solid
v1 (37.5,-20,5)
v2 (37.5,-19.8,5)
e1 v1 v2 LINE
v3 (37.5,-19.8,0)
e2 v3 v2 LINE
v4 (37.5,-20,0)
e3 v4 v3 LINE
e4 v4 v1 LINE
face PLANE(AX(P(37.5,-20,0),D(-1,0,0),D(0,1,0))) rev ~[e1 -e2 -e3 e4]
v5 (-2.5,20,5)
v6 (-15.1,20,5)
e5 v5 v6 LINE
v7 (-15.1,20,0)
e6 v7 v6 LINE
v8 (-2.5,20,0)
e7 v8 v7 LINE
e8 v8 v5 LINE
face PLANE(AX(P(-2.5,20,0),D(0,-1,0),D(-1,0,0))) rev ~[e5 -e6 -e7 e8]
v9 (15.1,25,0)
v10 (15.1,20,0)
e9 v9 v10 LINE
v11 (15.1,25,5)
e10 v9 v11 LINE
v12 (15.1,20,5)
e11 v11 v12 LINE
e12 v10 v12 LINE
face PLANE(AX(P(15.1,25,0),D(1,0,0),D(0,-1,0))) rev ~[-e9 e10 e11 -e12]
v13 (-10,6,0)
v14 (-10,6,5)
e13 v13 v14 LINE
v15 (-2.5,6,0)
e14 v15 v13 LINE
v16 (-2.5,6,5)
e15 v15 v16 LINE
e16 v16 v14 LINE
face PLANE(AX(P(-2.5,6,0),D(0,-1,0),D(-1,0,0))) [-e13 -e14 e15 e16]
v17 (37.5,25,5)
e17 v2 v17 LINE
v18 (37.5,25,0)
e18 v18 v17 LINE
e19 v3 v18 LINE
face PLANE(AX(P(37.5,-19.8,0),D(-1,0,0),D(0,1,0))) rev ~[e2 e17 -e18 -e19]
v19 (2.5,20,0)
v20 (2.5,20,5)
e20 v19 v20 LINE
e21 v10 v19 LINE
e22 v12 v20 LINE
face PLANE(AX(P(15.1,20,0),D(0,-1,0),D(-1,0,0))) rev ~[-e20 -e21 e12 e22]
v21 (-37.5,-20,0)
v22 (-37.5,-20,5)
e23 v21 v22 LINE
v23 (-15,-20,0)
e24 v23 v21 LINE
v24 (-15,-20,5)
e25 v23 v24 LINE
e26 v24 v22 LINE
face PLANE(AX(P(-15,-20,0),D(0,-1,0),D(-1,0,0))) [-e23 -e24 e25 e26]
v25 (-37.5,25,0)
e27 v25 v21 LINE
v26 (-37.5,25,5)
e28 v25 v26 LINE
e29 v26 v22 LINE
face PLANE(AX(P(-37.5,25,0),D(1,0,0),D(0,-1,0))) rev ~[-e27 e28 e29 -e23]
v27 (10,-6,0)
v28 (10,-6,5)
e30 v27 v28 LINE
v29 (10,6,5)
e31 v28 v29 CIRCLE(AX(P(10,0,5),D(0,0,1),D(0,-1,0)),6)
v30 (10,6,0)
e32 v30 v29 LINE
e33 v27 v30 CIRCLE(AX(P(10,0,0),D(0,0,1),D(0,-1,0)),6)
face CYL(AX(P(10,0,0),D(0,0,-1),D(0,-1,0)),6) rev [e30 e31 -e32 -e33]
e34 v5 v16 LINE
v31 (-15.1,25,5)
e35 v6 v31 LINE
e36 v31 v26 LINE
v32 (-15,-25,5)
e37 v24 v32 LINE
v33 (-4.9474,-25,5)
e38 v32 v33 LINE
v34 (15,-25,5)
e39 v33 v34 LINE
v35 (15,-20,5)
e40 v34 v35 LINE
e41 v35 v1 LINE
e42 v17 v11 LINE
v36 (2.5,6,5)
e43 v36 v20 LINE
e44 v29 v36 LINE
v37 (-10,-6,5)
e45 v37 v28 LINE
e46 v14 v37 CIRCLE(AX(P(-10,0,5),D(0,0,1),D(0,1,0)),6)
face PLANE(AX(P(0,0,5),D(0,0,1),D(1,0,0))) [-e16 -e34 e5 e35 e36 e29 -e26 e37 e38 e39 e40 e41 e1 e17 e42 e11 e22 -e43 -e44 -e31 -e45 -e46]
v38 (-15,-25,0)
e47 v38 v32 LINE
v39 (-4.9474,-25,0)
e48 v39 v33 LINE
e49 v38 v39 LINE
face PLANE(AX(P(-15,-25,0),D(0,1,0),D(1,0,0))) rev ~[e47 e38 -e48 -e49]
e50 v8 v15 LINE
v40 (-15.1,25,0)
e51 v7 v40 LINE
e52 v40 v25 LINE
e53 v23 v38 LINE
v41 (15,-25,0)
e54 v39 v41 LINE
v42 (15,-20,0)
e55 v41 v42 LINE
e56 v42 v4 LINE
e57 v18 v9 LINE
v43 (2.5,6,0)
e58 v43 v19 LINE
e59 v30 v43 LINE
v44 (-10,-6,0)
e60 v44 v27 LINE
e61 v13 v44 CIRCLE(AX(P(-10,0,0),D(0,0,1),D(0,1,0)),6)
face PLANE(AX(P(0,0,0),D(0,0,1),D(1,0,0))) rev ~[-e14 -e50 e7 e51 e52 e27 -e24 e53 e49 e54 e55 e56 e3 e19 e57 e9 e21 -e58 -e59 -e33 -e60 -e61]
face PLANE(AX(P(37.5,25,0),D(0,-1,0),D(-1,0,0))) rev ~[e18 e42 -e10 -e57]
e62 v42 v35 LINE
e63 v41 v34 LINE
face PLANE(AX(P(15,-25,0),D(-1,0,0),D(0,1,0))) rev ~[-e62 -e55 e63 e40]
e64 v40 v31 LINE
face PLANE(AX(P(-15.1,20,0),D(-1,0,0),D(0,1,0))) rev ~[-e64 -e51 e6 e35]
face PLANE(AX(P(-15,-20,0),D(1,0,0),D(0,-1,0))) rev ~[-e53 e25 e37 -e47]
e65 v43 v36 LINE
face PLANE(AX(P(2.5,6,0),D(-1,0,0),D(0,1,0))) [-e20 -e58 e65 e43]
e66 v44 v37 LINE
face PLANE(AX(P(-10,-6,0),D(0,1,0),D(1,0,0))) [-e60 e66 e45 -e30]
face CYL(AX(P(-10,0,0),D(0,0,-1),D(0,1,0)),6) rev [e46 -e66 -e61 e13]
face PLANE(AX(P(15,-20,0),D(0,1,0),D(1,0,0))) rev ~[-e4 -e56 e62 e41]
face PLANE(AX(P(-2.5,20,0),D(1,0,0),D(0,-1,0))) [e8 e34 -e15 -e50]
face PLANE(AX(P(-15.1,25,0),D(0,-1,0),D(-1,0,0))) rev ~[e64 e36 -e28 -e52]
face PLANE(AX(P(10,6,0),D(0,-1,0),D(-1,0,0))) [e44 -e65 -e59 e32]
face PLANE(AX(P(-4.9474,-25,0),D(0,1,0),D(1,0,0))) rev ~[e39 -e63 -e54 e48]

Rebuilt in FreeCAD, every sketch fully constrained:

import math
import FreeCAD as App
import Part
import Sketcher
Q = App.Units.Quantity

doc = App.newDocument("Part")
body = doc.addObject("PartDesign::Body", "Body")

# Sketch on XY plane
sketch1 = body.newObject("Sketcher::SketchObject", "Sketch")
sketch1.AttachmentSupport = (doc.getObject("XY_Plane"), [""])
sketch1.MapMode = "FlatFace"
sketch1.addGeometry([
    Part.LineSegment(App.Vector(-15, -20, 0), App.Vector(-15, -25, 0)),  # 0
    Part.LineSegment(App.Vector(-15, -25, 0), App.Vector(15, -25, 0)),  # 1
    Part.LineSegment(App.Vector(15, -25, 0), App.Vector(15, -20, 0)),  # 2
    Part.LineSegment(App.Vector(15, -20, 0), App.Vector(37.5, -20, 0)),  # 3
    Part.LineSegment(App.Vector(37.5, -20, 0), App.Vector(37.5, 25, 0)),  # 4
    Part.LineSegment(App.Vector(37.5, 25, 0), App.Vector(15.1, 25, 0)),  # 5
    Part.LineSegment(App.Vector(15.1, 25, 0), App.Vector(15.1, 20, 0)),  # 6
    Part.LineSegment(App.Vector(15.1, 20, 0), App.Vector(2.5, 20, 0)),  # 7
    Part.LineSegment(App.Vector(2.5, 20, 0), App.Vector(2.5, 6, 0)),  # 8
    Part.LineSegment(App.Vector(2.5, 6, 0), App.Vector(10, 6, 0)),  # 9
    Part.ArcOfCircle(Part.Circle(App.Vector(10, 0, 0), App.Vector(0, 0, 1), 6), math.radians(-90), math.radians(90)),  # 10
    Part.LineSegment(App.Vector(10, -6, 0), App.Vector(-10, -6, 0)),  # 11
    Part.ArcOfCircle(Part.Circle(App.Vector(-10, 0, 0), App.Vector(0, 0, 1), 6), math.radians(90), math.radians(270)),  # 12
    Part.LineSegment(App.Vector(-10, 6, 0), App.Vector(-2.5, 6, 0)),  # 13
    Part.LineSegment(App.Vector(-2.5, 6, 0), App.Vector(-2.5, 20, 0)),  # 14
    Part.LineSegment(App.Vector(-2.5, 20, 0), App.Vector(-15.1, 20, 0)),  # 15
    Part.LineSegment(App.Vector(-15.1, 20, 0), App.Vector(-15.1, 25, 0)),  # 16
    Part.LineSegment(App.Vector(-15.1, 25, 0), App.Vector(-37.5, 25, 0)),  # 17
    Part.LineSegment(App.Vector(-37.5, 25, 0), App.Vector(-37.5, -20, 0)),  # 18
    Part.LineSegment(App.Vector(-37.5, -20, 0), App.Vector(-15, -20, 0)),  # 19
], False)
sketch1.addConstraint([
    Sketcher.Constraint("Coincident", 0, 2, 1, 1),
    Sketcher.Constraint("Coincident", 1, 2, 2, 1),
    Sketcher.Constraint("Coincident", 2, 2, 3, 1),
    Sketcher.Constraint("Coincident", 3, 2, 4, 1),
    Sketcher.Constraint("Coincident", 4, 2, 5, 1),
    Sketcher.Constraint("Coincident", 5, 2, 6, 1),
    Sketcher.Constraint("Coincident", 6, 2, 7, 1),
    Sketcher.Constraint("Coincident", 7, 2, 8, 1),
    Sketcher.Constraint("Coincident", 8, 2, 9, 1),
    Sketcher.Constraint("Tangent", 9, 2, 10, 2),
    Sketcher.Constraint("Tangent", 10, 1, 11, 1),
    Sketcher.Constraint("Tangent", 11, 2, 12, 2),
    Sketcher.Constraint("Tangent", 12, 1, 13, 1),
    Sketcher.Constraint("Coincident", 13, 2, 14, 1),
    Sketcher.Constraint("Coincident", 14, 2, 15, 1),
    Sketcher.Constraint("Coincident", 15, 2, 16, 1),
    Sketcher.Constraint("Coincident", 16, 2, 17, 1),
    Sketcher.Constraint("Coincident", 17, 2, 18, 1),
    Sketcher.Constraint("Coincident", 18, 2, 19, 1),
    Sketcher.Constraint("Coincident", 19, 2, 0, 1),
    Sketcher.Constraint("Vertical", 0),
    Sketcher.Constraint("Horizontal", 1),
    Sketcher.Constraint("Vertical", 2),
    Sketcher.Constraint("Horizontal", 3),
    Sketcher.Constraint("Vertical", 4),
    Sketcher.Constraint("Horizontal", 5),
    Sketcher.Constraint("Vertical", 6),
    Sketcher.Constraint("Horizontal", 7),
    Sketcher.Constraint("Vertical", 8),
    Sketcher.Constraint("Horizontal", 9),
    Sketcher.Constraint("Horizontal", 11),
    Sketcher.Constraint("Horizontal", 13),
    Sketcher.Constraint("Vertical", 14),
    Sketcher.Constraint("Horizontal", 15),
    Sketcher.Constraint("Vertical", 16),
    Sketcher.Constraint("Horizontal", 17),
    Sketcher.Constraint("Vertical", 18),
    Sketcher.Constraint("Horizontal", 19),
    Sketcher.Constraint("Equal", 10, 12),
    Sketcher.Constraint("Symmetric", 10, 3, 12, 3, -1, 1),
    Sketcher.Constraint("Symmetric", 7, 2, 14, 2, -2),
    Sketcher.Constraint("Symmetric", 5, 2, 16, 2, -2),
    Sketcher.Constraint("Symmetric", 3, 2, 18, 2, -2),
    Sketcher.Constraint("Equal", 3, 19),
    Sketcher.Constraint("Equal", 2, 6),
    Sketcher.Constraint("Radius", 10, Q("6 mm")),
    Sketcher.Constraint("DistanceX", 1, 1, 1, 2, Q("30 mm")),
    Sketcher.Constraint("DistanceX", 11, 2, 11, 1, Q("20 mm")),
    Sketcher.Constraint("DistanceY", 0, 2, 0, 1, Q("5 mm")),
    Sketcher.Constraint("DistanceY", 2, 2, -1, 1, Q("20 mm")),
    Sketcher.Constraint("DistanceY", -1, 1, 6, 2, Q("20 mm")),
    Sketcher.Constraint("DistanceX", 13, 2, 8, 2, Q("5 mm")),
    Sketcher.Constraint("DistanceX", 3, 1, 3, 2, Q("22.5 mm")),
    Sketcher.Constraint("DistanceX", 5, 2, 5, 1, Q("22.4 mm")),
])
pad1 = body.newObject("PartDesign::Pad", "Pad")
pad1.Profile = sketch1
pad1.Length = 5

doc.recompute()
